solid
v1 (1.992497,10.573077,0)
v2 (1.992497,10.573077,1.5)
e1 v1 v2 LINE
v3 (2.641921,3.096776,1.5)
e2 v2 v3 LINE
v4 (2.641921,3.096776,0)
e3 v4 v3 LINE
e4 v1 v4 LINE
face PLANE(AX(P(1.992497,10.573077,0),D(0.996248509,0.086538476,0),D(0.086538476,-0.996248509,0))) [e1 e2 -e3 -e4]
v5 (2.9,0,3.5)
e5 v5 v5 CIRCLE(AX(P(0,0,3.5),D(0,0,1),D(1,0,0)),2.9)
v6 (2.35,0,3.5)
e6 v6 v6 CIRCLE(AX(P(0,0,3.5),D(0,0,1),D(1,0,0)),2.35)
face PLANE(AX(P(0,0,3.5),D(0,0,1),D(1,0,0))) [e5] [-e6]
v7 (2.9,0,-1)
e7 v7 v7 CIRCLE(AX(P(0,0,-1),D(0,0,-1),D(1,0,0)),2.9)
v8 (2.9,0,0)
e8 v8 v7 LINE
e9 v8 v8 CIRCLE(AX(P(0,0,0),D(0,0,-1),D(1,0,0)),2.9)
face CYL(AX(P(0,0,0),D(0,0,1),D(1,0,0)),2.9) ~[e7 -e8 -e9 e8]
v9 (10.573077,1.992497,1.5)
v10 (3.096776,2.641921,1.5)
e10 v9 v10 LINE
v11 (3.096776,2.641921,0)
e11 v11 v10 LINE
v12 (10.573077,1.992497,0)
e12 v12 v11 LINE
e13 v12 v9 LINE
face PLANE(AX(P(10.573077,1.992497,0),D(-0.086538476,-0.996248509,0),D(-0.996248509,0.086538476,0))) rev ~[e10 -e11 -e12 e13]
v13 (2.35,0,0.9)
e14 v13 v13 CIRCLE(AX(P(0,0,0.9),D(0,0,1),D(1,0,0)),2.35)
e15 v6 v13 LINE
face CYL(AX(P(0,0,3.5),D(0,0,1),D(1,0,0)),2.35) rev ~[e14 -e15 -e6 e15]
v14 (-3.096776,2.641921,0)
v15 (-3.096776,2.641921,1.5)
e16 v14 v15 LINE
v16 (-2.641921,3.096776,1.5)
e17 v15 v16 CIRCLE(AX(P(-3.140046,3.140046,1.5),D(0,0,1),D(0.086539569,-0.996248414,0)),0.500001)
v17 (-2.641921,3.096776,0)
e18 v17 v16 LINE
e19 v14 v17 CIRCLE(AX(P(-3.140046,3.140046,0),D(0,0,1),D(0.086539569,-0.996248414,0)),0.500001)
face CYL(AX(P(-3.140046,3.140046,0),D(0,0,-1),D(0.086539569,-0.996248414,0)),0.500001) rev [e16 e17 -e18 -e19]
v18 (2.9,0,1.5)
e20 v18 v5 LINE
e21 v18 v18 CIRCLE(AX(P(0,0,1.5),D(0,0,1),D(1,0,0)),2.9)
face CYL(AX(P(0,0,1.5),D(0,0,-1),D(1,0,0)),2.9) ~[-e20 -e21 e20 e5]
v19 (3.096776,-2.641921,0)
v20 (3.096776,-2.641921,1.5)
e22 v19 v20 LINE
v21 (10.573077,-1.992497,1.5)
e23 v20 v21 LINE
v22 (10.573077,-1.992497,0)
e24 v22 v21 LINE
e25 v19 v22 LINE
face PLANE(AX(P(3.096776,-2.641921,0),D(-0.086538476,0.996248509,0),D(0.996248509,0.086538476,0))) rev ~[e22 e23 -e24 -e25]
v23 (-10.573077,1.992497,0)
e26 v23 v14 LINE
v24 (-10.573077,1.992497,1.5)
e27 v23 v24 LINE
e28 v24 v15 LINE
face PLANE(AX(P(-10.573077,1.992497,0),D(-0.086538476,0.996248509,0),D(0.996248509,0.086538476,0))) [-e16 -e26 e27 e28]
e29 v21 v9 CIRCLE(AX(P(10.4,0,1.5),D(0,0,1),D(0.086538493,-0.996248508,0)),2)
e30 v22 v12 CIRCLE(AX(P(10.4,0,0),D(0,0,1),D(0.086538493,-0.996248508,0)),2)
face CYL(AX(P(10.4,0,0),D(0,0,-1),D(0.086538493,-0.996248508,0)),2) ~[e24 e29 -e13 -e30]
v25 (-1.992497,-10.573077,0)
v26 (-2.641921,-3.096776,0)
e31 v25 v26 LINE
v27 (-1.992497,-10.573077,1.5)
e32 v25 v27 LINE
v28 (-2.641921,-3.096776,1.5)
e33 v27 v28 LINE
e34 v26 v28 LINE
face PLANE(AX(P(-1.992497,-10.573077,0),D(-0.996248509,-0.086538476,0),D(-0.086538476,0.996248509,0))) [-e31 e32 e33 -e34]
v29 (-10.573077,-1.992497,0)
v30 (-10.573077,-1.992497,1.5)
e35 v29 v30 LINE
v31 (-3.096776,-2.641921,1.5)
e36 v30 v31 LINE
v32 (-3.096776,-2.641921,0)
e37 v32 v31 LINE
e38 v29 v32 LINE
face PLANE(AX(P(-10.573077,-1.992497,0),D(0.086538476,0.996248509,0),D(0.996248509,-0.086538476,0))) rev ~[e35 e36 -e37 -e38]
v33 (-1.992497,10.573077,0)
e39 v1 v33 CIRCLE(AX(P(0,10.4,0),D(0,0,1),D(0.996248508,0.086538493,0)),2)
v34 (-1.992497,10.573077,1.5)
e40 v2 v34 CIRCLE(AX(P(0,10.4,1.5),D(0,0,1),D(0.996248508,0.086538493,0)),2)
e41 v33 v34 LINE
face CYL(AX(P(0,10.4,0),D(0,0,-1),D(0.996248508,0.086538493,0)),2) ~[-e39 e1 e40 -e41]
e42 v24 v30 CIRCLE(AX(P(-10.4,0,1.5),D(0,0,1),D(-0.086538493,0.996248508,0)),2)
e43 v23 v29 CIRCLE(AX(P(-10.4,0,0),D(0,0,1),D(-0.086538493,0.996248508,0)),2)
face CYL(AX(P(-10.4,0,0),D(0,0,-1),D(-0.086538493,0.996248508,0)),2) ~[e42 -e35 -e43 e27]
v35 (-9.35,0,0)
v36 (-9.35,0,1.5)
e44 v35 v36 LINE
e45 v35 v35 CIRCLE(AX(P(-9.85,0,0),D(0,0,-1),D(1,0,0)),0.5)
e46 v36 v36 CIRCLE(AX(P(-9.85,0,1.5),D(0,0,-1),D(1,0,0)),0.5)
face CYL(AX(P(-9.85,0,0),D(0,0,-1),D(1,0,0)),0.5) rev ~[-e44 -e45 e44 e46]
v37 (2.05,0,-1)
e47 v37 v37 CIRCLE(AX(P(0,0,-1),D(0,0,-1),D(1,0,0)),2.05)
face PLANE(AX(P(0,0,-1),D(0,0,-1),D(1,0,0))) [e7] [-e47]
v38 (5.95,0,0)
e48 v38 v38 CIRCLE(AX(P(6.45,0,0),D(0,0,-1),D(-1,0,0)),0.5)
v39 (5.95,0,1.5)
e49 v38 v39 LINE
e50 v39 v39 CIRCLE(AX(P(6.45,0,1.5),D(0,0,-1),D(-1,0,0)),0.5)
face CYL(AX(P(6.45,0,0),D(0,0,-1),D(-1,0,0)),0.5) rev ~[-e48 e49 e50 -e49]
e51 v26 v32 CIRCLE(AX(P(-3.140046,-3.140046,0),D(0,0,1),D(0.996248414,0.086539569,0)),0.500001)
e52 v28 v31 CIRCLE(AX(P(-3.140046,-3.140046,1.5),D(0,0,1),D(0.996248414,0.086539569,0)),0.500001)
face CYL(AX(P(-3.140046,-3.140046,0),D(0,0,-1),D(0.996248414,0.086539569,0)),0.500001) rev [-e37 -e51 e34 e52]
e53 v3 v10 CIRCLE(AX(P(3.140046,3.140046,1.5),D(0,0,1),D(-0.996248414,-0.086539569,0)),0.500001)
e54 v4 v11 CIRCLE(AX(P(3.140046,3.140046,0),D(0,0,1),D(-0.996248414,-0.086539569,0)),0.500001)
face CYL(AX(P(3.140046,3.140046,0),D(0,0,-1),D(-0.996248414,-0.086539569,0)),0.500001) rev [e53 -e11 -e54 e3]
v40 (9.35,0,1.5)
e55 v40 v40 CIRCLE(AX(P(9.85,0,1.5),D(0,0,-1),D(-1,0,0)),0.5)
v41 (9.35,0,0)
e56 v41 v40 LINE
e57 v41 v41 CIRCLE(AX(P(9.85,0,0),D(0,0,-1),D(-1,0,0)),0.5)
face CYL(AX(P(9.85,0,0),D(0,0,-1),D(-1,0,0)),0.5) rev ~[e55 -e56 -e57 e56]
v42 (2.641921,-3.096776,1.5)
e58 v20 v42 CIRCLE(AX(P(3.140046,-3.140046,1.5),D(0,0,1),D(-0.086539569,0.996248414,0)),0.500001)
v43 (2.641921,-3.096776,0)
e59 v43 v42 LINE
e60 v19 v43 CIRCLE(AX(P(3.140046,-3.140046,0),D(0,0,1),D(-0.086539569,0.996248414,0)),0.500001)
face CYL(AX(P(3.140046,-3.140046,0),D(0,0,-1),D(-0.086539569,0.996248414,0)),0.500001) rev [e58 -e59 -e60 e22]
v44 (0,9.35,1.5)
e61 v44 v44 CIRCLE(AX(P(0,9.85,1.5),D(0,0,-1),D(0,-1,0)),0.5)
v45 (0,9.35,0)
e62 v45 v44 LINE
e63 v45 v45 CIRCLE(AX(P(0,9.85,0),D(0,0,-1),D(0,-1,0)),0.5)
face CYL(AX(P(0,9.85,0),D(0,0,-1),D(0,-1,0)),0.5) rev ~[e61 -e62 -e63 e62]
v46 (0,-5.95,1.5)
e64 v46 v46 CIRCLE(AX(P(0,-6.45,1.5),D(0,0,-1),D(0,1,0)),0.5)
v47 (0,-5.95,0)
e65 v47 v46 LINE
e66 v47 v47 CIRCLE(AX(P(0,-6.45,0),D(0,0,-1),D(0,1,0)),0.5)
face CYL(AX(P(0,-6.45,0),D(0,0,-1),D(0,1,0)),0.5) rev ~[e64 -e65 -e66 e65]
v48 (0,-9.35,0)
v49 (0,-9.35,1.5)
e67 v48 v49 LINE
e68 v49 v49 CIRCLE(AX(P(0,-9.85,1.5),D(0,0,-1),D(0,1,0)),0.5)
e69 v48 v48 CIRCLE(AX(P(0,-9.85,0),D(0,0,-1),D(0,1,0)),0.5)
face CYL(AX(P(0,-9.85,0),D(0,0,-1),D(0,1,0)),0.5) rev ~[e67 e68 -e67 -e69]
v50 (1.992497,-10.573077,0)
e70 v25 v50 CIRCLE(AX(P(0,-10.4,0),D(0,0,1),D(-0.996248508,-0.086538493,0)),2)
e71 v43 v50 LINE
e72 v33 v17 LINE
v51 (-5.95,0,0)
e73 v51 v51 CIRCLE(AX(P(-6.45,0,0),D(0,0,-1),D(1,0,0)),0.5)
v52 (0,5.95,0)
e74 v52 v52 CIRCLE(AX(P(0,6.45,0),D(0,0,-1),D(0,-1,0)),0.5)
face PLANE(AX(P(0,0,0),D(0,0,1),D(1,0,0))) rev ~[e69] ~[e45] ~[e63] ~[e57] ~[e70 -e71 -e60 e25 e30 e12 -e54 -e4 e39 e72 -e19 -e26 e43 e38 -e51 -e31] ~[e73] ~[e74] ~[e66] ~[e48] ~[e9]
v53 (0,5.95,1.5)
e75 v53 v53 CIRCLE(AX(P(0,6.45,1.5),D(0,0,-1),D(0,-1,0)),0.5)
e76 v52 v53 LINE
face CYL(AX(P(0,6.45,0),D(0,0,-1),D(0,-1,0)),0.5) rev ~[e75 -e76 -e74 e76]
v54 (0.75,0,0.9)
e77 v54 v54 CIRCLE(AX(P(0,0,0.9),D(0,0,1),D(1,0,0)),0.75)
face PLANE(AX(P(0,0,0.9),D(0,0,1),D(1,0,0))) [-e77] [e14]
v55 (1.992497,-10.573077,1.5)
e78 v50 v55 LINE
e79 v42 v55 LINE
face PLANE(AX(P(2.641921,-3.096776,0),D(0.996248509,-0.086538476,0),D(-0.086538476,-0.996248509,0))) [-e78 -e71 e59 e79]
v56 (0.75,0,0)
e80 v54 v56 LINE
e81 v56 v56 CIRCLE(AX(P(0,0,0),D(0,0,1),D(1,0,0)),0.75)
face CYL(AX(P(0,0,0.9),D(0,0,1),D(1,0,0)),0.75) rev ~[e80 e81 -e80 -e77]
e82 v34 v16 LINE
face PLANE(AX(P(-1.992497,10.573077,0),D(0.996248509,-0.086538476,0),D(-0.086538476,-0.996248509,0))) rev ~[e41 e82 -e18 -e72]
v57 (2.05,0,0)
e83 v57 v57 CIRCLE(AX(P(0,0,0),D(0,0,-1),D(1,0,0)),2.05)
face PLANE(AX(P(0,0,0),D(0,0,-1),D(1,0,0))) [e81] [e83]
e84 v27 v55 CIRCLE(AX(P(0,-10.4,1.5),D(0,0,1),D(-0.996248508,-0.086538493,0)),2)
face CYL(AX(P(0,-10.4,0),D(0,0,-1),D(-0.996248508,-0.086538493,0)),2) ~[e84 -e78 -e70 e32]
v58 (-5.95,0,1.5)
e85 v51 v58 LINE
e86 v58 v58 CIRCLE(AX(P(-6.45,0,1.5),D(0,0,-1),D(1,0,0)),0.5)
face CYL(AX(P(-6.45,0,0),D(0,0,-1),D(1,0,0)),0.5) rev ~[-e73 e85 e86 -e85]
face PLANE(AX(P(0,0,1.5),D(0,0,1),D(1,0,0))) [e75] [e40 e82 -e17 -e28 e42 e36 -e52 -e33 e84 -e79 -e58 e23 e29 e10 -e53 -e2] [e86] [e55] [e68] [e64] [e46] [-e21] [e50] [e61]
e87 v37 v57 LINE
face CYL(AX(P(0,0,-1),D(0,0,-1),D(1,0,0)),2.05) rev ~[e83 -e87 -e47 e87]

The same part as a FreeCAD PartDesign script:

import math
import FreeCAD as App
import Part
import Sketcher
from FreeCAD import Vector

doc = App.newDocument("Part")
body = doc.addObject("PartDesign::Body", "Body")

sketch1 = body.newObject("Sketcher::SketchObject", "Sketch")
sketch1.AttachmentSupport = (doc.getObject("XY_Plane"), [""])
sketch1.MapMode = "FlatFace"
sketch1.addGeometry([
    Part.ArcOfCircle(Part.Circle(Vector(-10.4, 0, 0), Vector(0, 0, 1), 2), math.radians(95), math.radians(265)),
    Part.LineSegment(Vector(-10.6, -2, 0), Vector(-3.1, -2.6, 0)),
    Part.ArcOfCircle(Part.Circle(Vector(-3.1, -3.1, 0), Vector(0, 0, 1), 0.5), math.radians(5), math.radians(85)),
    Part.LineSegment(Vector(-2.6, -3.1, 0), Vector(-2, -10.6, 0)),
    Part.ArcOfCircle(Part.Circle(Vector(0, -10.4, 0), Vector(0, 0, 1), 2), math.radians(-175), math.radians(-5)),
    Part.LineSegment(Vector(2, -10.6, 0), Vector(2.6, -3.1, 0)),
    Part.ArcOfCircle(Part.Circle(Vector(3.1, -3.1, 0), Vector(0, 0, 1), 0.5), math.radians(95), math.radians(175)),
    Part.LineSegment(Vector(3.1, -2.6, 0), Vector(10.6, -2, 0)),
    Part.ArcOfCircle(Part.Circle(Vector(10.4, 0, 0), Vector(0, 0, 1), 2), math.radians(-85), math.radians(85)),
    Part.LineSegment(Vector(10.6, 2, 0), Vector(3.1, 2.6, 0)),
    Part.ArcOfCircle(Part.Circle(Vector(3.1, 3.1, 0), Vector(0, 0, 1), 0.5), math.radians(-175), math.radians(-95)),
    Part.LineSegment(Vector(2.6, 3.1, 0), Vector(2, 10.6, 0)),
    Part.ArcOfCircle(Part.Circle(Vector(0, 10.4, 0), Vector(0, 0, 1), 2), math.radians(5), math.radians(175)),
    Part.LineSegment(Vector(-2, 10.6, 0), Vector(-2.6, 3.1, 0)),
    Part.ArcOfCircle(Part.Circle(Vector(-3.1, 3.1, 0), Vector(0, 0, 1), 0.5), math.radians(-85), math.radians(-5)),
    Part.LineSegment(Vector(-3.1, 2.6, 0), Vector(-10.6, 2, 0)),
], False)
sketch1.addConstraint([
    Sketcher.Constraint("Tangent", 0, 2, 1, 1),
    Sketcher.Constraint("Tangent", 1, 2, 2, 2),
    Sketcher.Constraint("Tangent", 2, 1, 3, 1),
    Sketcher.Constraint("Tangent", 3, 2, 4, 1),
    Sketcher.Constraint("Tangent", 4, 2, 5, 1),
    Sketcher.Constraint("Tangent", 5, 2, 6, 2),
    Sketcher.Constraint("Tangent", 6, 1, 7, 1),
    Sketcher.Constraint("Tangent", 7, 2, 8, 1),
    Sketcher.Constraint("Tangent", 8, 2, 9, 1),
    Sketcher.Constraint("Tangent", 9, 2, 10, 2),
    Sketcher.Constraint("Tangent", 10, 1, 11, 1),
    Sketcher.Constraint("Tangent", 11, 2, 12, 1),
    Sketcher.Constraint("Tangent", 12, 2, 13, 1),
    Sketcher.Constraint("Tangent", 13, 2, 14, 2),
    Sketcher.Constraint("Tangent", 14, 1, 15, 1),
    Sketcher.Constraint("Tangent", 15, 2, 0, 1),
    Sketcher.Constraint("Equal", 0, 4),
    Sketcher.Constraint("Equal", 2, 6),
    Sketcher.Constraint("Equal", 4, 8),
    Sketcher.Constraint("Equal", 6, 10),
    Sketcher.Constraint("Equal", 8, 12),
    Sketcher.Constraint("Equal", 10, 14),
    Sketcher.Constraint("Symmetric", 0, 3, 8, 3, -1, 1),
    Sketcher.Constraint("Symmetric", 2, 3, 10, 3, -1, 1),
    Sketcher.Constraint("Symmetric", 4, 3, 12, 3, -1, 1),
    Sketcher.Constraint("Symmetric", 6, 3, 14, 3, -1, 1),
    Sketcher.Constraint("Symmetric", 2, 3, 6, 3, -2),
    Sketcher.Constraint("PointOnObject", 0, 3, -1),
    Sketcher.Constraint("PointOnObject", 4, 3, -2),
    Sketcher.Constraint("Perpendicular", 1, 5),
    Sketcher.Constraint("Equal", 1, 3),
    Sketcher.Constraint("Radius", 0, 2.0),
    Sketcher.Constraint("Radius", 2, 0.500001),
    Sketcher.Constraint("DistanceX", 0, 3, -1, 1, 10.4),
    Sketcher.Constraint("DistanceX", 0, 2, 1, 2, 7.476301),
])
pad1 = body.newObject("PartDesign::Pad", "Pad")
pad1.Profile = sketch1
pad1.Length = 1.5

sketch2 = body.newObject("Sketcher::SketchObject", "Sketch001")
sketch2.AttachmentSupport = (doc.getObject("XY_Plane"), [""])
sketch2.MapMode = "FlatFace"
sketch2.AttachmentOffset = App.Placement(Vector(0, 0, 1.5), App.Rotation())
sketch2.addGeometry(Part.Circle(Vector(0, 0, 0), Vector(0, 0, 1), 2.9), False)
sketch2.addConstraint([
    Sketcher.Constraint("Coincident", 0, 3, -1, 1),
    Sketcher.Constraint("Diameter", 0, 5.8),
])
pad2 = body.newObject("PartDesign::Pad", "Pad001")
pad2.Profile = sketch2
pad2.Length = 2

sketch3 = body.newObject("Sketcher::SketchObject", "Sketch002")
sketch3.AttachmentSupport = (doc.getObject("XY_Plane"), [""])
sketch3.MapMode = "FlatFace"
sketch3.AttachmentOffset = App.Placement(Vector(0, 0, 3.5), App.Rotation())
sketch3.addGeometry(Part.Circle(Vector(0, 0, 0), Vector(0, 0, 1), 2.4), False)
sketch3.addConstraint([
    Sketcher.Constraint("Coincident", 0, 3, -1, 1),
    Sketcher.Constraint("Diameter", 0, 4.7),
])
pocket1 = body.newObject("PartDesign::Pocket", "Pocket")
pocket1.Profile = sketch3
pocket1.Length = 2.6

sketch4 = body.newObject("Sketcher::SketchObject", "Sketch003")
sketch4.AttachmentSupport = (doc.getObject("XY_Plane"), [""])
sketch4.MapMode = "FlatFace"
sketch4.AttachmentOffset = App.Placement(Vector(0, 0, 0.9), App.Rotation())
sketch4.addGeometry(Part.Circle(Vector(0, 0, 0), Vector(0, 0, 1), 0.8), False)
sketch4.addConstraint([
    Sketcher.Constraint("Coincident", 0, 3, -1, 1),
    Sketcher.Constraint("Diameter", 0, 1.5),
])
pocket2 = body.newObject("PartDesign::Pocket", "Pocket001")
pocket2.Profile = sketch4
pocket2.Type = "ThroughAll"

sketch5 = body.newObject("Sketcher::SketchObject", "Sketch004")
sketch5.AttachmentSupport = (doc.getObject("XY_Plane"), [""])
sketch5.MapMode = "FlatFace"
sketch5.addGeometry(Part.Circle(Vector(0, 0, 0), Vector(0, 0, 1), 2.9), False)
sketch5.addConstraint([
    Sketcher.Constraint("Coincident", 0, 3, -1, 1),
    Sketcher.Constraint("Diameter", 0, 5.8),
])
pad3 = body.newObject("PartDesign::Pad", "Pad002")
pad3.Profile = sketch5
pad3.Length = 1
pad3.Reversed = True

sketch6 = body.newObject("Sketcher::SketchObject", "Sketch005")
sketch6.AttachmentSupport = (doc.getObject("XY_Plane"), [""])
sketch6.MapMode = "FlatFace"
sketch6.AttachmentOffset = App.Placement(Vector(0, 0, -1), App.Rotation())
sketch6.addGeometry(Part.Circle(Vector(0, 0, 0), Vector(0, 0, 1), 2), False)
sketch6.addConstraint([
    Sketcher.Constraint("Coincident", 0, 3, -1, 1),
    Sketcher.Constraint("Diameter", 0, 4.1),
])
pocket3 = body.newObject("PartDesign::Pocket", "Pocket002")
pocket3.Profile = sketch6
pocket3.Length = 1
pocket3.Reversed = True

sketch7 = body.newObject("Sketcher::SketchObject", "Sketch006")
sketch7.AttachmentSupport = (doc.getObject("XY_Plane"), [""])
sketch7.MapMode = "FlatFace"
sketch7.addGeometry([
    Part.Circle(Vector(-6.5, 0, 0), Vector(0, 0, 1), 0.5),
    Part.Circle(Vector(-9.8, 0, 0), Vector(0, 0, 1), 0.5),
], False)
sketch7.addConstraint([
    Sketcher.Constraint("Equal", 0, 1),
    Sketcher.Constraint("PointOnObject", 0, 3, -1),
    Sketcher.Constraint("PointOnObject", 1, 3, -1),
    Sketcher.Constraint("Diameter", 0, 1.0),
    Sketcher.Constraint("DistanceX", 1, 3, 0, 3, 3.4),
    Sketcher.Constraint("DistanceX", 0, 3, -1, 1, 6.45),
])
pocket4 = body.newObject("PartDesign::Pocket", "Pocket003")
pocket4.Profile = sketch7
pocket4.Type = "ThroughAll"
pocket4.Reversed = True
doc.recompute()

polarpattern = body.newObject("PartDesign::PolarPattern", "PolarPattern")
polarpattern.Originals = [pocket4]
polarpattern.Axis = (doc.getObject("Z_Axis"), [""])
polarpattern.Angle = 360
polarpattern.Occurrences = 4
body.Tip = polarpattern

doc.recompute()
